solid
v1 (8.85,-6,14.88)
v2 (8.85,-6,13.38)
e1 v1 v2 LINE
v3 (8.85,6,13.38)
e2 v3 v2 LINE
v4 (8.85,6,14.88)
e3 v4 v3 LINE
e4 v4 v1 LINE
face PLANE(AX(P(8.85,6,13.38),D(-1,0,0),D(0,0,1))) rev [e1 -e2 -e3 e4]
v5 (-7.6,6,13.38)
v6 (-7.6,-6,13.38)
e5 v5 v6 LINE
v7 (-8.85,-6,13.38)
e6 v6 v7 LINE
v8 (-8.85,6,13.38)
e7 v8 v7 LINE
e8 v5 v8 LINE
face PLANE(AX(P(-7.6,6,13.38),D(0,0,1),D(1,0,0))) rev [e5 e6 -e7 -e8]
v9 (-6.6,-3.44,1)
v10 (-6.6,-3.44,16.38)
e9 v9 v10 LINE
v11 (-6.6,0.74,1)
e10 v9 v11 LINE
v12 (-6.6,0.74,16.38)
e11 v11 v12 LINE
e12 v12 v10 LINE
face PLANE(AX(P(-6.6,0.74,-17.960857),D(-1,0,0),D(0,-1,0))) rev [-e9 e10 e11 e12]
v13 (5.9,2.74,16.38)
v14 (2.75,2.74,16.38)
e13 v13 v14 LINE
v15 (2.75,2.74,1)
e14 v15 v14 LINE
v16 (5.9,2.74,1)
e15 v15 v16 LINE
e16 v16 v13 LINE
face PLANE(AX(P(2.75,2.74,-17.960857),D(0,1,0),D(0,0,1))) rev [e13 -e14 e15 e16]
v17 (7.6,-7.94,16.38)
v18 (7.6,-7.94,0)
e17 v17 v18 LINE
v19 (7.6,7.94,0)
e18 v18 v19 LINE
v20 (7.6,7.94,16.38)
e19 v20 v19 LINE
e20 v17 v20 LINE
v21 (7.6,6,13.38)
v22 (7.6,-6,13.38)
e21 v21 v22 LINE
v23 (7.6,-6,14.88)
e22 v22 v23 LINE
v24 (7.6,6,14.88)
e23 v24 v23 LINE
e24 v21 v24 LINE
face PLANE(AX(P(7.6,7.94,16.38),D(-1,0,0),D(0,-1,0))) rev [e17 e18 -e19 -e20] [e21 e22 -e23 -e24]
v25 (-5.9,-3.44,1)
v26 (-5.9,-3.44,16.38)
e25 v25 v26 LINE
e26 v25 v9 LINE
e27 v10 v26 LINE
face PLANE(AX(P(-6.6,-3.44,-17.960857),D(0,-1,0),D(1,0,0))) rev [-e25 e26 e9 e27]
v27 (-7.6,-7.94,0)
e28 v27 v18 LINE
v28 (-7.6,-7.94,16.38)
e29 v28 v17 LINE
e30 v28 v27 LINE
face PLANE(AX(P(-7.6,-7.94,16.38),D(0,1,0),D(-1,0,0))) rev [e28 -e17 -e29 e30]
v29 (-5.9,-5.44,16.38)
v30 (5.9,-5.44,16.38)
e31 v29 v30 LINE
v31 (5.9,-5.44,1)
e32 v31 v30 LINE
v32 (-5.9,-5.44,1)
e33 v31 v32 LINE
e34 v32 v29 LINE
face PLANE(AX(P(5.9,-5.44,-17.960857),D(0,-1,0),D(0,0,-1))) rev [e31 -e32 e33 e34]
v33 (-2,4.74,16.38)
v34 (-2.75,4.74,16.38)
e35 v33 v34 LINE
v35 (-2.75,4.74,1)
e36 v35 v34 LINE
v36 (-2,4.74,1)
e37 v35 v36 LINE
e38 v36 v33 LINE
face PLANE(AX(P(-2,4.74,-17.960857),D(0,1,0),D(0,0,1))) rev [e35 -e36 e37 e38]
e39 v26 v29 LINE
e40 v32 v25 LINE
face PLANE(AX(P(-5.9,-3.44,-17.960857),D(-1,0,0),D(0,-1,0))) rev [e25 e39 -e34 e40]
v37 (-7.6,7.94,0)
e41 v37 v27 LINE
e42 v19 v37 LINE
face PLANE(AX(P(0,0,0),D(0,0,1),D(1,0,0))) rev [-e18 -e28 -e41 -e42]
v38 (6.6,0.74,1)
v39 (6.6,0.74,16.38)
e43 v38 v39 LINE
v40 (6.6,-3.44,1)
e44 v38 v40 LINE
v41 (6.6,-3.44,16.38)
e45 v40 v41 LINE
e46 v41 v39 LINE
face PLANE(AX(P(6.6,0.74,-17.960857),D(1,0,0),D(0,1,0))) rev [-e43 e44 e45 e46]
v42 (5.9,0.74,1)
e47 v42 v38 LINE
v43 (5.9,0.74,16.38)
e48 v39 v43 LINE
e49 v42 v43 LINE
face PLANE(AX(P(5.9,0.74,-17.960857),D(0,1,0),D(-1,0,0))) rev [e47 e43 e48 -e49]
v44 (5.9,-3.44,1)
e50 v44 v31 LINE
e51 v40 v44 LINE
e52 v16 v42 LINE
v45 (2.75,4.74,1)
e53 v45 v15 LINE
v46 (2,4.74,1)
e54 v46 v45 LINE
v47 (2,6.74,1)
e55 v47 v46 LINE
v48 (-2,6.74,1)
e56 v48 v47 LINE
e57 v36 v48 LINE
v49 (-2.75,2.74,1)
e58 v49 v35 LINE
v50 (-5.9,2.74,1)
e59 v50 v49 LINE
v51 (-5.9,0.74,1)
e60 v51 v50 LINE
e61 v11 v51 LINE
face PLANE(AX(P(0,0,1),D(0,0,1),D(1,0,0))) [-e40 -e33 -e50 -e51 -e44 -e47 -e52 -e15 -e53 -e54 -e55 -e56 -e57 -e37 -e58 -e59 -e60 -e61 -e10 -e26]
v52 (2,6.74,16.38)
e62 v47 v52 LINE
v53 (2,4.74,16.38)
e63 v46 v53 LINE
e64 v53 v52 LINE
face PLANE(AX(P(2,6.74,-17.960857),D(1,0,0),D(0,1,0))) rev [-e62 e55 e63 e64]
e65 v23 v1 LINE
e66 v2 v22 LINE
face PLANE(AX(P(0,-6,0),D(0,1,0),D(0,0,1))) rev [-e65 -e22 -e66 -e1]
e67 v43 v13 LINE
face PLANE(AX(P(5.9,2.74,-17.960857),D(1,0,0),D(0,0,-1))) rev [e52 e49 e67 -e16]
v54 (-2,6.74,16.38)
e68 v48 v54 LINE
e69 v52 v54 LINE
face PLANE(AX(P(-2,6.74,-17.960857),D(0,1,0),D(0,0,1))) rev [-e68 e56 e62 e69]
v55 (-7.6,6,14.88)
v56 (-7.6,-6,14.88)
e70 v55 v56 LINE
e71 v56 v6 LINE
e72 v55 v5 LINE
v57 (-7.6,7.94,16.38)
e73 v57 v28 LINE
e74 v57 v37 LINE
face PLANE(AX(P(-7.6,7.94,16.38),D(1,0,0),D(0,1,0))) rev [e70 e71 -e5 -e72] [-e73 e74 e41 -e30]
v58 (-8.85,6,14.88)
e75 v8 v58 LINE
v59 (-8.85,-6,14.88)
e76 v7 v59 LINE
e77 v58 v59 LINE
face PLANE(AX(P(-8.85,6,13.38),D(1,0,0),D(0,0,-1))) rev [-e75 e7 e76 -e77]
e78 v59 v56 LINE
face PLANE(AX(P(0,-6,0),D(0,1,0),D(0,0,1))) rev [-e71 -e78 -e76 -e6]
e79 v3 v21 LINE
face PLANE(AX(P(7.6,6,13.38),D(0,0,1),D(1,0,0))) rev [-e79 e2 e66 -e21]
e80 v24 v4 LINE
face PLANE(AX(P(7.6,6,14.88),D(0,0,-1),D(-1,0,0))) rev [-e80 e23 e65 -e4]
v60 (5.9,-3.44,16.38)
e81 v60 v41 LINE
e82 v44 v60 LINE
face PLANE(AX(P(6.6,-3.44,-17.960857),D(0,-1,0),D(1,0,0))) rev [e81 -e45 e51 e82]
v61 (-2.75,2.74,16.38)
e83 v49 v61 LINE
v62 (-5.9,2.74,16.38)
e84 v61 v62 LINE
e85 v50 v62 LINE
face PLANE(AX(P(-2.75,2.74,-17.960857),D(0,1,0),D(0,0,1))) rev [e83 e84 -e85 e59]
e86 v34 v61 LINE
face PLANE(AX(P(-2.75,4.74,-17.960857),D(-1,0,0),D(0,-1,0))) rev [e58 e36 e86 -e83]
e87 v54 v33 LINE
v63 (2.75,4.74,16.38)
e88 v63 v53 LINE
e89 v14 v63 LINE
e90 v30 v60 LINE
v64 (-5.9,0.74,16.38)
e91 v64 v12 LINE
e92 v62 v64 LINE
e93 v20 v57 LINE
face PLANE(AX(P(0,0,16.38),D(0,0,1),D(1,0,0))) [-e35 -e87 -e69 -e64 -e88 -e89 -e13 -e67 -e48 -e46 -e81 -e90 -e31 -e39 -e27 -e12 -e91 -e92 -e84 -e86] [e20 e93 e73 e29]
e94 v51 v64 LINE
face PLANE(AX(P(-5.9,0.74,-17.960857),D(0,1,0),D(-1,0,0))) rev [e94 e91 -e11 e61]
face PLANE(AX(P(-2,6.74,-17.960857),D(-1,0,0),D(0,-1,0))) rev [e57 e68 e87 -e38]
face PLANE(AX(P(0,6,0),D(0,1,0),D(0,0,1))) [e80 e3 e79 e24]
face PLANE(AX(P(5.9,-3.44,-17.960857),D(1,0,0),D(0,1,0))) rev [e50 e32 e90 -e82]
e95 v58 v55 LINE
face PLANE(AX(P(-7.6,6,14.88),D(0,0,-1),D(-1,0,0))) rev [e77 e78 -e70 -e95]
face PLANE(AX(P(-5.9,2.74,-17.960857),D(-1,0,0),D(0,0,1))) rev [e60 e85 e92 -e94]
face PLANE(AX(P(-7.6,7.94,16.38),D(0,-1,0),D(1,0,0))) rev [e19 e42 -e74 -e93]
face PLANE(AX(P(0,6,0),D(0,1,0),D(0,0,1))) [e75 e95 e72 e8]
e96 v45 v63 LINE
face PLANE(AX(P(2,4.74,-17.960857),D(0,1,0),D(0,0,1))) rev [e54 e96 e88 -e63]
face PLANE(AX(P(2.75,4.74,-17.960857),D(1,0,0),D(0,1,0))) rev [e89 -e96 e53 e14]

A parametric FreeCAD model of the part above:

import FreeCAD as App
import Part
import Sketcher

doc = App.newDocument("Part")
body = doc.addObject("PartDesign::Body", "Body")

# Sketch on XY plane
sketch1 = body.newObject("Sketcher::SketchObject", "Sketch")
sketch1.AttachmentSupport = (doc.getObject("XY_Plane"), [""])
sketch1.MapMode = "FlatFace"
sketch1.addGeometry(Part.LineSegment(App.Vector(-8, 8, 0), App.Vector(-8, -8, 0)), False)
sketch1.addGeometry(Part.LineSegment(App.Vector(-8, -8, 0), App.Vector(8, -8, 0)), False)
sketch1.addGeometry(Part.LineSegment(App.Vector(8, -8, 0), App.Vector(8, 8, 0)), False)
sketch1.addGeometry(Part.LineSegment(App.Vector(8, 8, 0), App.Vector(-8, 8, 0)), False)
sketch1.addConstraint(Sketcher.Constraint("Coincident", 0, 2, 1, 1))
sketch1.addConstraint(Sketcher.Constraint("Coincident", 1, 2, 2, 1))
sketch1.addConstraint(Sketcher.Constraint("Coincident", 2, 2, 3, 1))
sketch1.addConstraint(Sketcher.Constraint("Coincident", 3, 2, 0, 1))
sketch1.addConstraint(Sketcher.Constraint("Vertical", 0))
sketch1.addConstraint(Sketcher.Constraint("Horizontal", 1))
sketch1.addConstraint(Sketcher.Constraint("Vertical", 2))
sketch1.addConstraint(Sketcher.Constraint("Horizontal", 3))
sketch1.addConstraint(Sketcher.Constraint("Symmetric", 0, 2, 2, 2, -1, 1))
sketch1.addConstraint(Sketcher.Constraint("DistanceX", 1, 1, 1, 2, 15.2))
sketch1.addConstraint(Sketcher.Constraint("DistanceY", 0, 2, 0, 1, 15.88))
pad1 = body.newObject("PartDesign::Pad", "Pad")
pad1.Profile = sketch1
pad1.Length = 16.38

# Sketch on XY plane
sketch2 = body.newObject("Sketcher::SketchObject", "Sketch001")
sketch2.AttachmentSupport = (doc.getObject("XY_Plane"), [""])
sketch2.MapMode = "FlatFace"
sketch2.AttachmentOffset = App.Placement(App.Vector(0, 0, 16.38), App.Rotation())
sketch2.addGeometry(Part.LineSegment(App.Vector(2, 6.7, 0), App.Vector(-2, 6.7, 0)), False)
sketch2.addGeometry(Part.LineSegment(App.Vector(-2, 6.7, 0), App.Vector(-2, 4.7, 0)), False)
sketch2.addGeometry(Part.LineSegment(App.Vector(-2, 4.7, 0), App.Vector(-2.8, 4.7, 0)), False)
sketch2.addGeometry(Part.LineSegment(App.Vector(-2.8, 4.7, 0), App.Vector(-2.8, 2.7, 0)), False)
sketch2.addGeometry(Part.LineSegment(App.Vector(-2.8, 2.7, 0), App.Vector(-5.9, 2.7, 0)), False)
sketch2.addGeometry(Part.LineSegment(App.Vector(-5.9, 2.7, 0), App.Vector(-5.9, 0.7, 0)), False)
sketch2.addGeometry(Part.LineSegment(App.Vector(-5.9, 0.7, 0), App.Vector(-6.6, 0.7, 0)), False)
sketch2.addGeometry(Part.LineSegment(App.Vector(-6.6, 0.7, 0), App.Vector(-6.6, -3.4, 0)), False)
sketch2.addGeometry(Part.LineSegment(App.Vector(-6.6, -3.4, 0), App.Vector(-5.9, -3.4, 0)), False)
sketch2.addGeometry(Part.LineSegment(App.Vector(-5.9, -3.4, 0), App.Vector(-5.9, -5.4, 0)), False)
sketch2.addGeometry(Part.LineSegment(App.Vector(-5.9, -5.4, 0), App.Vector(5.9, -5.4, 0)), False)
sketch2.addGeometry(Part.LineSegment(App.Vector(5.9, -5.4, 0), App.Vector(5.9, -3.4, 0)), False)
sketch2.addGeometry(Part.LineSegment(App.Vector(5.9, -3.4, 0), App.Vector(6.6, -3.4, 0)), False)
sketch2.addGeometry(Part.LineSegment(App.Vector(6.6, -3.4, 0), App.Vector(6.6, 0.7, 0)), False)
sketch2.addGeometry(Part.LineSegment(App.Vector(6.6, 0.7, 0), App.Vector(5.9, 0.7, 0)), False)
sketch2.addGeometry(Part.LineSegment(App.Vector(5.9, 0.7, 0), App.Vector(5.9, 2.7, 0)), False)
sketch2.addGeometry(Part.LineSegment(App.Vector(5.9, 2.7, 0), App.Vector(2.8, 2.7, 0)), False)
sketch2.addGeometry(Part.LineSegment(App.Vector(2.8, 2.7, 0), App.Vector(2.8, 4.7, 0)), False)
sketch2.addGeometry(Part.LineSegment(App.Vector(2.8, 4.7, 0), App.Vector(2, 4.7, 0)), False)
sketch2.addGeometry(Part.LineSegment(App.Vector(2, 4.7, 0), App.Vector(2, 6.7, 0)), False)
sketch2.addConstraint(Sketcher.Constraint("Coincident", 0, 2, 1, 1))
sketch2.addConstraint(Sketcher.Constraint("Coincident", 1, 2, 2, 1))
sketch2.addConstraint(Sketcher.Constraint("Coincident", 2, 2, 3, 1))
sketch2.addConstraint(Sketcher.Constraint("Coincident", 3, 2, 4, 1))
sketch2.addConstraint(Sketcher.Constraint("Coincident", 4, 2, 5, 1))
sketch2.addConstraint(Sketcher.Constraint("Coincident", 5, 2, 6, 1))
sketch2.addConstraint(Sketcher.Constraint("Coincident", 6, 2, 7, 1))
sketch2.addConstraint(Sketcher.Constraint("Coincident", 7, 2, 8, 1))
sketch2.addConstraint(Sketcher.Constraint("Coincident", 8, 2, 9, 1))
sketch2.addConstraint(Sketcher.Constraint("Coincident", 9, 2, 10, 1))
sketch2.addConstraint(Sketcher.Constraint("Coincident", 10, 2, 11, 1))
sketch2.addConstraint(Sketcher.Constraint("Coincident", 11, 2, 12, 1))
sketch2.addConstraint(Sketcher.Constraint("Coincident", 12, 2, 13, 1))
sketch2.addConstraint(Sketcher.Constraint("Coincident", 13, 2, 14, 1))
sketch2.addConstraint(Sketcher.Constraint("Coincident", 14, 2, 15, 1))
sketch2.addConstraint(Sketcher.Constraint("Coincident", 15, 2, 16, 1))
sketch2.addConstraint(Sketcher.Constraint("Coincident", 16, 2, 17, 1))
sketch2.addConstraint(Sketcher.Constraint("Coincident", 17, 2, 18, 1))
sketch2.addConstraint(Sketcher.Constraint("Coincident", 18, 2, 19, 1))
sketch2.addConstraint(Sketcher.Constraint("Coincident", 19, 2, 0, 1))
sketch2.addConstraint(Sketcher.Constraint("Horizontal", 0))
sketch2.addConstraint(Sketcher.Constraint("Vertical", 1))
sketch2.addConstraint(Sketcher.Constraint("Horizontal", 2))
sketch2.addConstraint(Sketcher.Constraint("Vertical", 3))
sketch2.addConstraint(Sketcher.Constraint("Horizontal", 4))
sketch2.addConstraint(Sketcher.Constraint("Vertical", 5))
sketch2.addConstraint(Sketcher.Constraint("Horizontal", 6))
sketch2.addConstraint(Sketcher.Constraint("Vertical", 7))
sketch2.addConstraint(Sketcher.Constraint("Horizontal", 8))
sketch2.addConstraint(Sketcher.Constraint("Vertical", 9))
sketch2.addConstraint(Sketcher.Constraint("Horizontal", 10))
sketch2.addConstraint(Sketcher.Constraint("Vertical", 11))
sketch2.addConstraint(Sketcher.Constraint("Horizontal", 12))
sketch2.addConstraint(Sketcher.Constraint("Vertical", 13))
sketch2.addConstraint(Sketcher.Constraint("Horizontal", 14))
sketch2.addConstraint(Sketcher.Constraint("Vertical", 15))
sketch2.addConstraint(Sketcher.Constraint("Horizontal", 16))
sketch2.addConstraint(Sketcher.Constraint("Vertical", 17))
sketch2.addConstraint(Sketcher.Constraint("Horizontal", 18))
sketch2.addConstraint(Sketcher.Constraint("Vertical", 19))
sketch2.addConstraint(Sketcher.Constraint("Symmetric", 8, 2, 11, 2, -2))
sketch2.addConstraint(Sketcher.Constraint("Symmetric", 6, 2, 13, 2, -2))
sketch2.addConstraint(Sketcher.Constraint("Symmetric", 4, 2, 15, 2, -2))
sketch2.addConstraint(Sketcher.Constraint("Symmetric", 2, 2, 17, 2, -2))
sketch2.addConstraint(Sketcher.Constraint("Vertical", 5, 2, 8, 2))
sketch2.addConstraint(Sketcher.Constraint("Equal", 2, 18))
sketch2.addConstraint(Sketcher.Constraint("Equal", 1, 3))
sketch2.addConstraint(Sketcher.Constraint("Equal", 3, 5))
sketch2.addConstraint(Sketcher.Constraint("Equal", 5, 9))
sketch2.addConstraint(Sketcher.Constraint("DistanceX", 0, 2, 0, 1, 4.0))
sketch2.addConstraint(Sketcher.Constraint("DistanceY", 1, 2, 1, 1, 2.0))
sketch2.addConstraint(Sketcher.Constraint("DistanceX", 6, 2, 6, 1, 0.7))
sketch2.addConstraint(Sketcher.Constraint("DistanceX", 10, 1, 10, 2, 11.8))
sketch2.addConstraint(Sketcher.Constraint("DistanceX", 2, 2, 2, 1, 0.75))
sketch2.addConstraint(Sketcher.Constraint("DistanceY", 7, 2, 7, 1, 4.18))
sketch2.addConstraint(Sketcher.Constraint("DistanceY", -1, 1, 0, 2, 6.74))
pocket1 = body.newObject("PartDesign::Pocket", "Pocket")
pocket1.Profile = sketch2
pocket1.Length = 15.38

# Sketch on XZ plane
sketch3 = body.newObject("Sketcher::SketchObject", "Sketch002")
sketch3.AttachmentSupport = (doc.getObject("XZ_Plane"), [""])
sketch3.MapMode = "FlatFace"
sketch3.addGeometry(Part.LineSegment(App.Vector(7.6, 13.4, 0), App.Vector(7.6, 14.9, 0)), False)
sketch3.addGeometry(Part.LineSegment(App.Vector(7.6, 14.9, 0), App.Vector(8.8, 14.9, 0)), False)
sketch3.addGeometry(Part.LineSegment(App.Vector(8.8, 14.9, 0), App.Vector(8.8, 13.4, 0)), False)
sketch3.addGeometry(Part.LineSegment(App.Vector(8.8, 13.4, 0), App.Vector(7.6, 13.4, 0)), False)
sketch3.addGeometry(Part.LineSegment(App.Vector(-8.8, 13.4, 0), App.Vector(-8.8, 14.9, 0)), False)
sketch3.addGeometry(Part.LineSegment(App.Vector(-8.8, 14.9, 0), App.Vector(-7.6, 14.9, 0)), False)
sketch3.addGeometry(Part.LineSegment(App.Vector(-7.6, 14.9, 0), App.Vector(-7.6, 13.4, 0)), False)
sketch3.addGeometry(Part.LineSegment(App.Vector(-7.6, 13.4, 0), App.Vector(-8.8, 13.4, 0)), False)
sketch3.addConstraint(Sketcher.Constraint("Coincident", 0, 2, 1, 1))
sketch3.addConstraint(Sketcher.Constraint("Coincident", 1, 2, 2, 1))
sketch3.addConstraint(Sketcher.Constraint("Coincident", 2, 2, 3, 1))
sketch3.addConstraint(Sketcher.Constraint("Coincident", 3, 2, 0, 1))
sketch3.addConstraint(Sketcher.Constraint("Coincident", 4, 2, 5, 1))
sketch3.addConstraint(Sketcher.Constraint("Coincident", 5, 2, 6, 1))
sketch3.addConstraint(Sketcher.Constraint("Coincident", 6, 2, 7, 1))
sketch3.addConstraint(Sketcher.Constraint("Coincident", 7, 2, 4, 1))
sketch3.addConstraint(Sketcher.Constraint("Vertical", 0))
sketch3.addConstraint(Sketcher.Constraint("Horizontal", 1))
sketch3.addConstraint(Sketcher.Constraint("Vertical", 2))
sketch3.addConstraint(Sketcher.Constraint("Horizontal", 3))
sketch3.addConstraint(Sketcher.Constraint("Vertical", 4))
sketch3.addConstraint(Sketcher.Constraint("Horizontal", 5))
sketch3.addConstraint(Sketcher.Constraint("Vertical", 6))
sketch3.addConstraint(Sketcher.Constraint("Horizontal", 7))
sketch3.addConstraint(Sketcher.Constraint("Symmetric", 1, 2, 4, 2, -2))
sketch3.addConstraint(Sketcher.Constraint("Symmetric", 3, 2, 6, 2, -2))
sketch3.addConstraint(Sketcher.Constraint("DistanceY", 0, 1, 0, 2, 1.5))
sketch3.addConstraint(Sketcher.Constraint("DistanceX", 1, 1, 1, 2, 1.25))
sketch3.addConstraint(Sketcher.Constraint("DistanceX", -1, 1, 0, 2, 7.6))
sketch3.addConstraint(Sketcher.Constraint("DistanceY", -1, 1, 0, 2, 14.88))
pad2 = body.newObject("PartDesign::Pad", "Pad001")
pad2.Profile = sketch3
pad2.Length = 12
pad2.Midplane = True

doc.recompute()
